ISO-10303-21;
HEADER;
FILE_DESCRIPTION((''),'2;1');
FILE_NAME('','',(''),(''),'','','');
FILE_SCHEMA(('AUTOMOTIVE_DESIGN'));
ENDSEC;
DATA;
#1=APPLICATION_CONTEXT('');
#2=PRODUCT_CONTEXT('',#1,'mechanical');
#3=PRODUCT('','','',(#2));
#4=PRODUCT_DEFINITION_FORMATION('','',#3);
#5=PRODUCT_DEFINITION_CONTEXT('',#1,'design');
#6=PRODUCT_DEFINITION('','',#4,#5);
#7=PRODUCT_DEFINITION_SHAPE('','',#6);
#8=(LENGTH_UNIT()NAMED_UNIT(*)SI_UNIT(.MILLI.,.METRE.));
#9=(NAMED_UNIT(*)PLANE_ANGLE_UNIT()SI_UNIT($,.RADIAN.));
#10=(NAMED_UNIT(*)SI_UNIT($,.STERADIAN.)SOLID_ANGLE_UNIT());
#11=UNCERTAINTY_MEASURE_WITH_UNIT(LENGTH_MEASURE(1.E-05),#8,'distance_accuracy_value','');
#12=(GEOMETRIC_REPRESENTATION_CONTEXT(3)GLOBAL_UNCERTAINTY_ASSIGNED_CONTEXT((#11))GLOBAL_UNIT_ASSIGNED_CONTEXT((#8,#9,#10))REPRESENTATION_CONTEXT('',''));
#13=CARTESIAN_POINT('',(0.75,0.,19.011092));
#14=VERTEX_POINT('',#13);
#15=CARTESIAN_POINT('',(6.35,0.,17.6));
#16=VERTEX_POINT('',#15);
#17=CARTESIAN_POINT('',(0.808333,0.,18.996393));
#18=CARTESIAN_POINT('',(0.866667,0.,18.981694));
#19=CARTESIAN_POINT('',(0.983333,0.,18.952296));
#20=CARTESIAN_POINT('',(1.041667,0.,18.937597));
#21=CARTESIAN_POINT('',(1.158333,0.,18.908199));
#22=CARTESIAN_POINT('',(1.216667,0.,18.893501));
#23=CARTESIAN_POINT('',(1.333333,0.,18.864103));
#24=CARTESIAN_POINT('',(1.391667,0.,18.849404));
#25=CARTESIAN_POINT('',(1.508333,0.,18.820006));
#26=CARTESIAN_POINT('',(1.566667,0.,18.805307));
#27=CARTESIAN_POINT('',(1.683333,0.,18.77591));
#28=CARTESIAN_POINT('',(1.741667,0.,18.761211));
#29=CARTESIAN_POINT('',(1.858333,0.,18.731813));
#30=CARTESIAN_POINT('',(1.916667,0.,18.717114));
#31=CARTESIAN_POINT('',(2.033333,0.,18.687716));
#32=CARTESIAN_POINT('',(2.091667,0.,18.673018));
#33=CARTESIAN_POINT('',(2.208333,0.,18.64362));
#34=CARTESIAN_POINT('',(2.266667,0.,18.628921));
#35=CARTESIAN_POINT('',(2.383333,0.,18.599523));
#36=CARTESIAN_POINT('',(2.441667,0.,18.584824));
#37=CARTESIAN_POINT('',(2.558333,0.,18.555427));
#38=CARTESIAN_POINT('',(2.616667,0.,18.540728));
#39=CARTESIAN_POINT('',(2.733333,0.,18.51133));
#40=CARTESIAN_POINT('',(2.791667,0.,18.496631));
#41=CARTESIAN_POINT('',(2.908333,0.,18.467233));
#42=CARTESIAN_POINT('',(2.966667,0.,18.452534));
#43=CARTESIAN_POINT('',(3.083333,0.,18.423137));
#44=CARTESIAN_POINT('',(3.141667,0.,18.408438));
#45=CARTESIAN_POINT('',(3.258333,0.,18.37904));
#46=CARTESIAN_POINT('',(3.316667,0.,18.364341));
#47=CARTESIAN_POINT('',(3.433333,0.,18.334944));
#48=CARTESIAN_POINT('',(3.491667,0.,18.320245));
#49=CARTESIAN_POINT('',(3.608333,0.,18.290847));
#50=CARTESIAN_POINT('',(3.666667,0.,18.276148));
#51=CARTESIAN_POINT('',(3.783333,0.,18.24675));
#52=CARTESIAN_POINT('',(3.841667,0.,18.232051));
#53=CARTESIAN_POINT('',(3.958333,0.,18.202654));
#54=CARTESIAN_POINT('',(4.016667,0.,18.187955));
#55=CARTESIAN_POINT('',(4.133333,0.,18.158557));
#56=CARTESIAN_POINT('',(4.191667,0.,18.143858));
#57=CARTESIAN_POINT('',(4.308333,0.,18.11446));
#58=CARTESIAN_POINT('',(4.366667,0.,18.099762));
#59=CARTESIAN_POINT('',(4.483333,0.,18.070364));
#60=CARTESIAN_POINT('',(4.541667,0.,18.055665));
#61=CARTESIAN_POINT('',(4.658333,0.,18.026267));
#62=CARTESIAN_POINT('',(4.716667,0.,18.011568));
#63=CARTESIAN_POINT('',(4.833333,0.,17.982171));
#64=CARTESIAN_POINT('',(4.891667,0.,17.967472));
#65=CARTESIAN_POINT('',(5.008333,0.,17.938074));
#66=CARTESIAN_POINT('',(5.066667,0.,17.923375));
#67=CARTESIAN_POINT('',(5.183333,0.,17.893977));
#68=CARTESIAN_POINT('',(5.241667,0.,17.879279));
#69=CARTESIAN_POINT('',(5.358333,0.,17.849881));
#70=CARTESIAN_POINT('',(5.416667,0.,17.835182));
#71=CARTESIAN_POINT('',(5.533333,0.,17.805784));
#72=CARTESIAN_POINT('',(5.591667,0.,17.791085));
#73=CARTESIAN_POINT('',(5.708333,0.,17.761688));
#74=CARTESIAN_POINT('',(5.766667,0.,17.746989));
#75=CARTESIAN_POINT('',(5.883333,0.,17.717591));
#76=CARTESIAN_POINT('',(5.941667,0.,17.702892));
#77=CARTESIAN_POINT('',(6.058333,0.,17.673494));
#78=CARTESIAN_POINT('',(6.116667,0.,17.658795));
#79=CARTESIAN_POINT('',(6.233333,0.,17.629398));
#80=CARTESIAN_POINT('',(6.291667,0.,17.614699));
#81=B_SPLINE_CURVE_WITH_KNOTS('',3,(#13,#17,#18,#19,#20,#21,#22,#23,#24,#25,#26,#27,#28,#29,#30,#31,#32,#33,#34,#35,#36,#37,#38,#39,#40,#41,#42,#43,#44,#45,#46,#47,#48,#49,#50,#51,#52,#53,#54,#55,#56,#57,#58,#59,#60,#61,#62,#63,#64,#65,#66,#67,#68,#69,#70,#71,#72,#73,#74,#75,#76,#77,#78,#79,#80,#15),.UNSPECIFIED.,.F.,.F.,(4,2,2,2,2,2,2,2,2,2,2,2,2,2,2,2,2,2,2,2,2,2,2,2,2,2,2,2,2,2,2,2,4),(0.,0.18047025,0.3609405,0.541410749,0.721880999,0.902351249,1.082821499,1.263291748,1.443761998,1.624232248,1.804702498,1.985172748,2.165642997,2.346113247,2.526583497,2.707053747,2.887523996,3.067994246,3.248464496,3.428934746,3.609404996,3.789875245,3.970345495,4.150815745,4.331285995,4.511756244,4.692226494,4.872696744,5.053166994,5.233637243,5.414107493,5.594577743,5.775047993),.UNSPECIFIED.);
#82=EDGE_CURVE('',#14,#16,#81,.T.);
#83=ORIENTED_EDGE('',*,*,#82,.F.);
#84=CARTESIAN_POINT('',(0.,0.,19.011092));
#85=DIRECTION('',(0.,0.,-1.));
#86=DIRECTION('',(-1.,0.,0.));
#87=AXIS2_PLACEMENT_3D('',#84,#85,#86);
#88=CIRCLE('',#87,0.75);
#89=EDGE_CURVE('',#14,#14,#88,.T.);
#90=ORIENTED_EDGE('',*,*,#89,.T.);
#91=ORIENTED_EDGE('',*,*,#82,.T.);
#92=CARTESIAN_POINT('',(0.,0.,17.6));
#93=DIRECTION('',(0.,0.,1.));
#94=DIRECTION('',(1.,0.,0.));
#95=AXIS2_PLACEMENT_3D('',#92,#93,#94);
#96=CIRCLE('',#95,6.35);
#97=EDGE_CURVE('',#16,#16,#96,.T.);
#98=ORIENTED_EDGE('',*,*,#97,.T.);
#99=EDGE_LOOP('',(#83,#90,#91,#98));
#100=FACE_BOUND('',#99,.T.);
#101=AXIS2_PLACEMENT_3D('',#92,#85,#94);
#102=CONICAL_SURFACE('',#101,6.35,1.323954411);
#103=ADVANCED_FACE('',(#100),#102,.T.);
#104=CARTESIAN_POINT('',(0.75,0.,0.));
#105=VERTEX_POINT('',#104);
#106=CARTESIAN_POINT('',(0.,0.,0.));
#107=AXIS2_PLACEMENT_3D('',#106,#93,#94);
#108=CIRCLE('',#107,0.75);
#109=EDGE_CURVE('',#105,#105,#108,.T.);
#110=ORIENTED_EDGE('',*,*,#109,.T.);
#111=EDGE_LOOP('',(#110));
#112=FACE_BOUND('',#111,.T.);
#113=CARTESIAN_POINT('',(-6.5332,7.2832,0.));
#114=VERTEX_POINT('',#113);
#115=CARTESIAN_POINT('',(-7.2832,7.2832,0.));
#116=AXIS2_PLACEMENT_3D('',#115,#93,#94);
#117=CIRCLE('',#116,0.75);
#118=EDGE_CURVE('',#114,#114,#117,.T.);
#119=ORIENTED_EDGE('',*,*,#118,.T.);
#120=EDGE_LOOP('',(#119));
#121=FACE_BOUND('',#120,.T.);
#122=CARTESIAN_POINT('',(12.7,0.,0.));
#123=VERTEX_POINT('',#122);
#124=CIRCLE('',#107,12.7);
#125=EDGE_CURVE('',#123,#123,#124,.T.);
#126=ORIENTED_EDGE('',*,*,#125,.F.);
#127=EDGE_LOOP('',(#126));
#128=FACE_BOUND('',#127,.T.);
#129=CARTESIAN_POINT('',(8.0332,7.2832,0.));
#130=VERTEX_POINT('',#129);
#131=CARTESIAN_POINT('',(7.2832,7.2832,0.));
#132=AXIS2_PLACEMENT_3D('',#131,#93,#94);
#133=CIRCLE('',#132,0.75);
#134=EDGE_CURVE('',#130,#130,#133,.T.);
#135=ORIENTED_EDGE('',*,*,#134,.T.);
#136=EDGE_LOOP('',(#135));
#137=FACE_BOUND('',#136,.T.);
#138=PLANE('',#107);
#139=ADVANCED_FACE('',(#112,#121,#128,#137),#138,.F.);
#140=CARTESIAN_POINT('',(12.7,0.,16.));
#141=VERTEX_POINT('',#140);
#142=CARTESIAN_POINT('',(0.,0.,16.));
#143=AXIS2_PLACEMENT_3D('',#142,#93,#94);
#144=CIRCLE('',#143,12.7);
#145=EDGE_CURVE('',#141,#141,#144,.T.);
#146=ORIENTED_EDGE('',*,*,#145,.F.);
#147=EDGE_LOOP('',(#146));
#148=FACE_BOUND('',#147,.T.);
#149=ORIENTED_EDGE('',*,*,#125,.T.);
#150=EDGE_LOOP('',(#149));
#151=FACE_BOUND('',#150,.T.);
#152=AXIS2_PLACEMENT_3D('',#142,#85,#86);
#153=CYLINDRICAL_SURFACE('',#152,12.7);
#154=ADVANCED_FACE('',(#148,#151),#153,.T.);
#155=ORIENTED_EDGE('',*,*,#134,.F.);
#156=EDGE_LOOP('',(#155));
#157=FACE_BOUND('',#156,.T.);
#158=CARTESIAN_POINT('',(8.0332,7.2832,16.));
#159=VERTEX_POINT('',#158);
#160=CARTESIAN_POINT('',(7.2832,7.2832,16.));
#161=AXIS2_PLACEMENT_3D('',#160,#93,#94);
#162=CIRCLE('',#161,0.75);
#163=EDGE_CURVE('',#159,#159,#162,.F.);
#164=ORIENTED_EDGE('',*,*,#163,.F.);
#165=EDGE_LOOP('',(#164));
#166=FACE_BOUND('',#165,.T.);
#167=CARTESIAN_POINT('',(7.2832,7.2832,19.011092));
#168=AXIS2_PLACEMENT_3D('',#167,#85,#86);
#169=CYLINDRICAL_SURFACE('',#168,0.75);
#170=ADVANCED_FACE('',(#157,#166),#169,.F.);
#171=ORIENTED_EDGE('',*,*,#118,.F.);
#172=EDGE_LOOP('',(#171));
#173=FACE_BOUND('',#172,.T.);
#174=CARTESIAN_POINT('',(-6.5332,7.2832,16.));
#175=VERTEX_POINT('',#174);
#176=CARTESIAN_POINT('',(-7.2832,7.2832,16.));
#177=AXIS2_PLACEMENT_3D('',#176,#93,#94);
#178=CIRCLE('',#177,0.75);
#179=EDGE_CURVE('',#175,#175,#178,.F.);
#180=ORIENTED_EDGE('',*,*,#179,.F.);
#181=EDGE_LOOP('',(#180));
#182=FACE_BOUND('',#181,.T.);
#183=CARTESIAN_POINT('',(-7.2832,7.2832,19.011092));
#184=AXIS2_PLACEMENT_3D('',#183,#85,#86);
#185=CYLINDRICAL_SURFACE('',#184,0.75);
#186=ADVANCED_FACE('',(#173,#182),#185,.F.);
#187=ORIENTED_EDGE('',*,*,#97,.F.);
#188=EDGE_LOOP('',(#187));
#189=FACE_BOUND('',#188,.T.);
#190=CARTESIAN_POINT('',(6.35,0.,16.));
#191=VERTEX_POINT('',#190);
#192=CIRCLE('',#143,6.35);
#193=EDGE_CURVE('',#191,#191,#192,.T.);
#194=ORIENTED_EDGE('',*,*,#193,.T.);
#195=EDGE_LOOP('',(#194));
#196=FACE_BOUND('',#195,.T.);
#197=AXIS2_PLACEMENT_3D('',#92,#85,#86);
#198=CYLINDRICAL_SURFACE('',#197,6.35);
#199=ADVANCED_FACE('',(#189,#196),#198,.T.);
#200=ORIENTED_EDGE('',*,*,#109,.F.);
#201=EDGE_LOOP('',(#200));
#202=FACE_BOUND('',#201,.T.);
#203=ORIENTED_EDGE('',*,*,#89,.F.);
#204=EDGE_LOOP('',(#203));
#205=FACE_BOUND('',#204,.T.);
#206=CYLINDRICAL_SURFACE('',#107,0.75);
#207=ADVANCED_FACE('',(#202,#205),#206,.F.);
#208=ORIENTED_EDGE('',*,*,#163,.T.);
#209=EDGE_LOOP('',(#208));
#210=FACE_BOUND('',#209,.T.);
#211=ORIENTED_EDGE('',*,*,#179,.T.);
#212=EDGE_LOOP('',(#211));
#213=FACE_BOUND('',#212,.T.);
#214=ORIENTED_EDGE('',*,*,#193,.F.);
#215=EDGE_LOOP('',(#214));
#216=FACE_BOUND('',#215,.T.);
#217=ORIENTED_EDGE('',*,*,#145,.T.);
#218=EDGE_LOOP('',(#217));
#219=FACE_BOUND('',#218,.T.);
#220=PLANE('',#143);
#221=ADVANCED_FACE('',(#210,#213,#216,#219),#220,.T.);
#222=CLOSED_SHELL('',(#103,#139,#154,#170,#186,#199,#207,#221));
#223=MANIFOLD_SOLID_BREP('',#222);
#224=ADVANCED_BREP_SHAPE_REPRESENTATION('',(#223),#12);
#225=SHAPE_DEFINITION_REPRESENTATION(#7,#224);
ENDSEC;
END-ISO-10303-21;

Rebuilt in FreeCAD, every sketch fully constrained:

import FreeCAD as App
import Part
import Sketcher
from FreeCAD import Vector

doc = App.newDocument("Part")
params = doc.addObject("Spreadsheet::Sheet", "Params")
for row, (alias, value) in enumerate([
    ("sketch1_diameter", "25.4 mm"),
    ("pad1_length", "16 mm"),
    ("sketch2_diameter", "12.7 mm"),
    ("pad2_length", "1.6 mm"),
    ("sketch3_diameter", "12.7 mm"),
    ("pad3_length", "1.6 mm"),
    ("pad3_taper", "-75.857 deg"),
    ("sketch4_diameter", "1.5 mm"),
    ("sketch5_diameter", "1.5 mm"),
], start=1):
    params.set(f"A{row}", alias)
    params.set(f"B{row}", "=" + value)
    params.setAlias(f"B{row}", alias)

body = doc.addObject("PartDesign::Body", "Body")

# Sketch on XY plane
sketch1 = body.newObject("Sketcher::SketchObject", "Sketch")
sketch1.AttachmentSupport = (doc.getObject("XY_Plane"), [""])
sketch1.MapMode = "FlatFace"
sketch1.addGeometry(Part.Circle(Vector(0, 0, 0), Vector(0, 0, 1), 13), False)
sketch1.addConstraint([
    Sketcher.Constraint("Coincident", 0, 3, -1, 1),
    Sketcher.Constraint("Diameter", 0, 25.4),
])
sketch1.setExpression("Constraints[1]", "Params.sketch1_diameter")
pad1 = body.newObject("PartDesign::Pad", "Pad")
pad1.Profile = sketch1
pad1.setExpression("Length", "Params.pad1_length")

# Sketch on XY plane
sketch2 = body.newObject("Sketcher::SketchObject", "Sketch001")
sketch2.AttachmentSupport = (doc.getObject("XY_Plane"), [""])
sketch2.MapMode = "FlatFace"
sketch2.AttachmentOffset = App.Placement(Vector(0, 0, 16), App.Rotation())
sketch2.addGeometry(Part.Circle(Vector(0, 0, 0), Vector(0, 0, 1), 6), False)
sketch2.addConstraint([
    Sketcher.Constraint("Coincident", 0, 3, -1, 1),
    Sketcher.Constraint("Diameter", 0, 12.7),
])
sketch2.setExpression("Constraints[1]", "Params.sketch2_diameter")
pad2 = body.newObject("PartDesign::Pad", "Pad001")
pad2.Profile = sketch2
pad2.setExpression("Length", "Params.pad2_length")

# Sketch on XY plane
sketch3 = body.newObject("Sketcher::SketchObject", "Sketch002")
sketch3.AttachmentSupport = (doc.getObject("XY_Plane"), [""])
sketch3.MapMode = "FlatFace"
sketch3.AttachmentOffset = App.Placement(Vector(0, 0, 17.6), App.Rotation())
sketch3.addGeometry(Part.Circle(Vector(0, 0, 0), Vector(0, 0, 1), 6), False)
sketch3.addConstraint([
    Sketcher.Constraint("Coincident", 0, 3, -1, 1),
    Sketcher.Constraint("Diameter", 0, 12.7),
])
sketch3.setExpression("Constraints[1]", "Params.sketch3_diameter")
pad3 = body.newObject("PartDesign::Pad", "Pad002")
pad3.Profile = sketch3
pad3.setExpression("Length", "Params.pad3_length")
pad3.setExpression("TaperAngle", "Params.pad3_taper")

# Sketch on XY plane
sketch4 = body.newObject("Sketcher::SketchObject", "Sketch003")
sketch4.AttachmentSupport = (doc.getObject("XY_Plane"), [""])
sketch4.MapMode = "FlatFace"
sketch4.AttachmentOffset = App.Placement(Vector(0, 0, 16), App.Rotation())
sketch4.addGeometry(Part.Circle(Vector(0, 0, 0), Vector(0, 0, 1), 0.8), False)
sketch4.addConstraint([
    Sketcher.Constraint("Coincident", 0, 3, -1, 1),
    Sketcher.Constraint("Diameter", 0, 1.5),
])
sketch4.setExpression("Constraints[1]", "Params.sketch4_diameter")
pocket1 = body.newObject("PartDesign::Pocket", "Pocket")
pocket1.Profile = sketch4
pocket1.Type = "ThroughAll"
pocket1.Midplane = True

# Sketch on XY plane
sketch5 = body.newObject("Sketcher::SketchObject", "Sketch004")
sketch5.AttachmentSupport = (doc.getObject("XY_Plane"), [""])
sketch5.MapMode = "FlatFace"
sketch5.addGeometry([
    Part.Circle(Vector(-7.3, 7.3, 0), Vector(0, 0, 1), 0.8),
    Part.Circle(Vector(7.3, 7.3, 0), Vector(0, 0, 1), 0.8),
], False)
sketch5.addConstraint([
    Sketcher.Constraint("Equal", 0, 1),
    Sketcher.Constraint("Symmetric", 0, 3, 1, 3, -2),
    Sketcher.Constraint("Diameter", 0, 1.5),
    Sketcher.Constraint("DistanceX", 0, 3, -1, 1, 7.2832),
    Sketcher.Constraint("DistanceY", -1, 1, 0, 3, 7.2832),
])
sketch5.setExpression("Constraints[2]", "Params.sketch5_diameter")
pocket2 = body.newObject("PartDesign::Pocket", "Pocket001")
pocket2.Profile = sketch5
pocket2.Type = "ThroughAll"
pocket2.Reversed = True

doc.recompute()
